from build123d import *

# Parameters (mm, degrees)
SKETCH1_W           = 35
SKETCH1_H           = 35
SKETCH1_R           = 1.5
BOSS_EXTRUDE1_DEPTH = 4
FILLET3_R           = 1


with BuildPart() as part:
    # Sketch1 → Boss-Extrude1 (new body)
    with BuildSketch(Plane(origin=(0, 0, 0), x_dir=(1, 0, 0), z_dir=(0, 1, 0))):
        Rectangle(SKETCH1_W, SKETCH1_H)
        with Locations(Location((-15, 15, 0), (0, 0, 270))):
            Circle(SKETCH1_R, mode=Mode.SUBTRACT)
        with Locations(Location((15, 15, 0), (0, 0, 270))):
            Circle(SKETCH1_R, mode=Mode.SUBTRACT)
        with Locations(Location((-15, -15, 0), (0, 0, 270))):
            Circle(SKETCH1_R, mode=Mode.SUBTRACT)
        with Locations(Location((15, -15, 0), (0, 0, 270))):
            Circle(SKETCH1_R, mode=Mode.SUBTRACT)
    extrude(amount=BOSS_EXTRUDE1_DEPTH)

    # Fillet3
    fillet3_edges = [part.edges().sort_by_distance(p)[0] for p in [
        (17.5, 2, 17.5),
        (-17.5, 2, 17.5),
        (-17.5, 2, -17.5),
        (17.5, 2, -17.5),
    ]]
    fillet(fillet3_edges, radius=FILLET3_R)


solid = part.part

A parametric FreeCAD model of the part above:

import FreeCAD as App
import Part
import Sketcher
from FreeCAD import Vector


def edges_at(feature, points):
    """Names of the edges that pass closest to the given points."""
    edges = feature.Shape.Edges
    near = lambda p: min(range(len(edges)), key=lambda i: edges[i].distToShape(Part.Vertex(*p))[0])
    return sorted({f"Edge{near(p) + 1}" for p in points})

doc = App.newDocument("Part")
body = doc.addObject("PartDesign::Body", "Body")

sketch1 = doc.addObject("Sketcher::SketchObject", "Sketch")
body.addObject(sketch1)
sketch1.AttachmentSupport = (doc.XZ_Plane, [""])
sketch1.MapMode = "FlatFace"
sketch1.addGeometry([
    Part.LineSegment(Vector(-17.5, -17.5, 0), Vector(-17.5, 17.5, 0)),
    Part.LineSegment(Vector(-17.5, 17.5, 0), Vector(17.5, 17.5, 0)),
    Part.LineSegment(Vector(17.5, 17.5, 0), Vector(17.5, -17.5, 0)),
    Part.LineSegment(Vector(17.5, -17.5, 0), Vector(-17.5, -17.5, 0)),
    Part.Circle(Vector(-15, 15, 0), Vector(0, 0, 1), 1.5),
    Part.Circle(Vector(15, 15, 0), Vector(0, 0, 1), 1.5),
    Part.Circle(Vector(-15, -15, 0), Vector(0, 0, 1), 1.5),
    Part.Circle(Vector(15, -15, 0), Vector(0, 0, 1), 1.5),
], False)
sketch1.addConstraint([
    Sketcher.Constraint("Coincident", 0, 2, 1, 1),
    Sketcher.Constraint("Coincident", 1, 2, 2, 1),
    Sketcher.Constraint("Coincident", 2, 2, 3, 1),
    Sketcher.Constraint("Coincident", 3, 2, 0, 1),
    Sketcher.Constraint("Vertical", 0),
    Sketcher.Constraint("Horizontal", 1),
    Sketcher.Constraint("Vertical", 2),
    Sketcher.Constraint("Horizontal", 3),
    Sketcher.Constraint("Equal", 4, 5),
    Sketcher.Constraint("Equal", 5, 6),
    Sketcher.Constraint("Equal", 6, 7),
    Sketcher.Constraint("Symmetric", 5, 3, 6, 3, -1, 1),
    Sketcher.Constraint("Symmetric", 4, 3, 7, 3, -1, 1),
    Sketcher.Constraint("Symmetric", 0, 2, 2, 2, -1, 1),
    Sketcher.Constraint("Symmetric", 4, 3, 5, 3, -2),
    Sketcher.Constraint("Equal", 3, 0),
    Sketcher.Constraint("Diameter", 4, 3.0),
    Sketcher.Constraint("DistanceX", 1, 1, 1, 2, 35.0),
    Sketcher.Constraint("DistanceX", 4, 3, -1, 1, 15.0),
    Sketcher.Constraint("DistanceY", -1, 1, 4, 3, 15.0),
])
pad1 = doc.addObject("PartDesign::Pad", "Pad")
body.addObject(pad1)
pad1.Profile = sketch1
pad1.Length = 4
pad1.Reversed = True
doc.recompute()

fillet = doc.addObject("PartDesign::Fillet", "Fillet")
body.addObject(fillet)
fillet.Base = (pad1, edges_at(pad1, [
    (17.5, 2, 17.5),
    (-17.5, 2, 17.5),
    (-17.5, 2, -17.5),
    (17.5, 2, -17.5),
]))
fillet.Radius = 1

doc.recompute()
